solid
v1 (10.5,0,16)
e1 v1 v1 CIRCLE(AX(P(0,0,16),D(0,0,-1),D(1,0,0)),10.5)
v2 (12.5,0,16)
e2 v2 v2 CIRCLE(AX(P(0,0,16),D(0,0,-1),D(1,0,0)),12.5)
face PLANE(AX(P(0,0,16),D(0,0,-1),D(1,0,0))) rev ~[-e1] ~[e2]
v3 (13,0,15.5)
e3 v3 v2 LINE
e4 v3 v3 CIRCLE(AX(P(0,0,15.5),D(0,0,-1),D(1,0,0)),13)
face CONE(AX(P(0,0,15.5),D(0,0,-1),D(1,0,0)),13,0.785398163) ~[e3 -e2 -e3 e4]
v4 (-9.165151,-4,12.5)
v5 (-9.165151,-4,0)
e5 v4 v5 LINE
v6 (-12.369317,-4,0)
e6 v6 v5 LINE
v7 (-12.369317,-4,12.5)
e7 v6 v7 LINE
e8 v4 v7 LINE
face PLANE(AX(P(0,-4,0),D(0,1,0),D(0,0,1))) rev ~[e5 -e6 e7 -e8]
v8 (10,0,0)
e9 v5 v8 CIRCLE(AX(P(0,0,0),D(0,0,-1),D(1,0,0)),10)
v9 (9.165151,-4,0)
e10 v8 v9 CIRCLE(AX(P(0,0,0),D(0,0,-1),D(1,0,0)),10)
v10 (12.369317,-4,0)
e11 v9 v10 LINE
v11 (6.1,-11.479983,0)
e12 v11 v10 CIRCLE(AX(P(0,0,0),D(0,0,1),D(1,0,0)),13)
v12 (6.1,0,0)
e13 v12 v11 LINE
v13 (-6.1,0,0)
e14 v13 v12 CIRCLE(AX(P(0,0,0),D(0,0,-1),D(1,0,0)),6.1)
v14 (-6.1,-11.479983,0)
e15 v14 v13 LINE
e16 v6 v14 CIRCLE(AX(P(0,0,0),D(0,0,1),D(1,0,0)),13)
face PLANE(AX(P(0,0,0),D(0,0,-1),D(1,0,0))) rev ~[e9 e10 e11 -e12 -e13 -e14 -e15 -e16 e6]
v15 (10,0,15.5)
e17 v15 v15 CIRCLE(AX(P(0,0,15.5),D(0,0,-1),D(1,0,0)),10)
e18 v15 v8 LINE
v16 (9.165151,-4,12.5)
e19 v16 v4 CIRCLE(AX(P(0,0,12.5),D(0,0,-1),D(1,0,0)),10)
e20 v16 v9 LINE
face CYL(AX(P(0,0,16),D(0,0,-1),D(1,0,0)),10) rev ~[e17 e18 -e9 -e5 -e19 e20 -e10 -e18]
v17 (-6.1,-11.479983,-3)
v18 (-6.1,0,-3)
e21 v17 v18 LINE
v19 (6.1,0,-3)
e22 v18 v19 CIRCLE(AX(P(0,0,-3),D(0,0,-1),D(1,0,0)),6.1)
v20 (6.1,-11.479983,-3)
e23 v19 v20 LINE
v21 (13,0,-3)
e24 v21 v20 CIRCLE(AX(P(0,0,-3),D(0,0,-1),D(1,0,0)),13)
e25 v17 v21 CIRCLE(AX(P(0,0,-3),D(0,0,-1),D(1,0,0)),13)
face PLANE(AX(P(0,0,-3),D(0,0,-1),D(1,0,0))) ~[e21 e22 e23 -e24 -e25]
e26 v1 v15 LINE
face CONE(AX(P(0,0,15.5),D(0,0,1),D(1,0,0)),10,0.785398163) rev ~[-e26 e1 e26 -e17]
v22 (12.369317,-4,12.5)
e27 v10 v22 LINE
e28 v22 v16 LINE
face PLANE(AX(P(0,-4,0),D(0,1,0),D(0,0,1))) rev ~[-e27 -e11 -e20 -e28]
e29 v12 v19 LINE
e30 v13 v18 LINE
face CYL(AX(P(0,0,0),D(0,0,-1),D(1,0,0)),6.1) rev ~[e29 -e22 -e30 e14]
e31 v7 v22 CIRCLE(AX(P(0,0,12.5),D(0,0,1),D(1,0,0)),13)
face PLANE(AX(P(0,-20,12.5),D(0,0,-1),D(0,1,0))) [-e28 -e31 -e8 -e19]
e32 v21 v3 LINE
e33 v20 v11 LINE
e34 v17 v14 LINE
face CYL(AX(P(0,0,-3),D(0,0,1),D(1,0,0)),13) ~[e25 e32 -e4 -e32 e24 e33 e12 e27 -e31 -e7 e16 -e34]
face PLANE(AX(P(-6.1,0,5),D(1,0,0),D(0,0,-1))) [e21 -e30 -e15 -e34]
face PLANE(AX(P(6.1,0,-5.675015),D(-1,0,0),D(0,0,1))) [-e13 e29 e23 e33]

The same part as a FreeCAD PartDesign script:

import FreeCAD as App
import Part
import Sketcher


def edges_at(feature, points):
    """Names of the edges that pass closest to the given points."""
    edges = feature.Shape.Edges
    near = lambda p: min(range(len(edges)), key=lambda i: edges[i].distToShape(Part.Vertex(*p))[0])
    return sorted({f"Edge{near(p) + 1}" for p in points})


def add_polygon(sketch, points):
    """Adds a closed chain of lines whose ends are joined by coincident constraints."""
    first, n = sketch.GeometryCount, len(points)
    for a, b in zip(points, points[1:] + points[:1]):
        sketch.addGeometry(Part.LineSegment(App.Vector(*a, 0), App.Vector(*b, 0)), False)
    for i in range(n):
        sketch.addConstraint(Sketcher.Constraint("Coincident", first + i, 2, first + (i + 1) % n, 1))

doc = App.newDocument("Part")
body = doc.addObject("PartDesign::Body", "Body")

sketch1 = doc.addObject("Sketcher::SketchObject", "Sketch")
body.addObject(sketch1)
sketch1.AttachmentSupport = (doc.XZ_Plane, [""])
sketch1.MapMode = "FlatFace"
add_polygon(sketch1, [(10, 16), (10, 0), (6.1, 0), (6.1, -3), (13, -3), (13, 16)])
sketch1.addConstraint(Sketcher.Constraint("Vertical", 0))
sketch1.addConstraint(Sketcher.Constraint("Horizontal", 1))
sketch1.addConstraint(Sketcher.Constraint("Vertical", 2))
sketch1.addConstraint(Sketcher.Constraint("Horizontal", 3))
sketch1.addConstraint(Sketcher.Constraint("Vertical", 4))
sketch1.addConstraint(Sketcher.Constraint("Horizontal", 5))
sketch1.addConstraint(Sketcher.Constraint("PointOnObject", 0, 2, -1))
sketch1.addConstraint(Sketcher.Constraint("Equal", 5, 2))
sketch1.addConstraint(Sketcher.Constraint("DistanceX", 5, 2, 5, 1, 3.0))
sketch1.addConstraint(Sketcher.Constraint("DistanceY", 0, 2, 0, 1, 16.0))
sketch1.addConstraint(Sketcher.Constraint("DistanceX", 1, 2, 1, 1, 3.9))
sketch1.addConstraint(Sketcher.Constraint("DistanceX", -1, 1, 0, 2, 10.0))
revolution = doc.addObject("PartDesign::Revolution", "Revolution")
body.addObject(revolution)
revolution.Profile = sketch1
revolution.ReferenceAxis = (sketch1, ["V_Axis"])
revolution.Angle = 360
doc.recompute()

chamfer = doc.addObject("PartDesign::Chamfer", "Chamfer")
body.addObject(chamfer)
chamfer.Base = (revolution, edges_at(revolution, [(-13, 0, 16)]))
chamfer.Size = 0.5
doc.recompute()

chamfer2 = doc.addObject("PartDesign::Chamfer", "Chamfer001")
body.addObject(chamfer2)
chamfer2.Base = (chamfer, edges_at(chamfer, [(-10, 0, 16)]))
chamfer2.Size = 0.5

sketch2 = doc.addObject("Sketcher::SketchObject", "Sketch001")
body.addObject(sketch2)
sketch2.AttachmentSupport = (doc.XZ_Plane, [""])
sketch2.MapMode = "FlatFace"
add_polygon(sketch2, [(6.1, 5), (-6.1, 5), (-6.1, -5.675015), (6.1, -5.675015)])
sketch2.addConstraint(Sketcher.Constraint("Horizontal", 0))
sketch2.addConstraint(Sketcher.Constraint("Vertical", 1))
sketch2.addConstraint(Sketcher.Constraint("Horizontal", 2))
sketch2.addConstraint(Sketcher.Constraint("Vertical", 3))
sketch2.addConstraint(Sketcher.Constraint("DistanceX", 0, 2, 0, 1, 12.2))
sketch2.addConstraint(Sketcher.Constraint("DistanceY", -1, 1, 0, 2, 5.0))
sketch2.addConstraint(Sketcher.Constraint("DistanceX", 0, 2, -1, 1, 6.1))
sketch2.addConstraint(Sketcher.Constraint("DistanceY", 1, 2, 1, 1, 10.675015))
pocket1 = doc.addObject("PartDesign::Pocket", "Pocket")
body.addObject(pocket1)
pocket1.Profile = sketch2
pocket1.Length = 20
pocket1.Reversed = True

sketch3 = doc.addObject("Sketcher::SketchObject", "Sketch002")
body.addObject(sketch3)
sketch3.AttachmentSupport = (doc.YZ_Plane, [""])
sketch3.MapMode = "FlatFace"
add_polygon(sketch3, [(-20, 12.5), (-20, 0), (-4, 0), (-4, 12.5)])
sketch3.addConstraint(Sketcher.Constraint("Vertical", 0))
sketch3.addConstraint(Sketcher.Constraint("Horizontal", 1))
sketch3.addConstraint(Sketcher.Constraint("Vertical", 2))
sketch3.addConstraint(Sketcher.Constraint("Horizontal", 3))
sketch3.addConstraint(Sketcher.Constraint("PointOnObject", 0, 2, -1))
sketch3.addConstraint(Sketcher.Constraint("DistanceX", 1, 1, 1, 2, 16.0))
sketch3.addConstraint(Sketcher.Constraint("DistanceY", 0, 2, 0, 1, 12.5))
sketch3.addConstraint(Sketcher.Constraint("DistanceX", 0, 2, -1, 1, 20.0))
pocket2 = doc.addObject("PartDesign::Pocket", "Pocket001")
body.addObject(pocket2)
pocket2.Profile = sketch3
pocket2.Length = 30
pocket2.Midplane = True

doc.recompute()
